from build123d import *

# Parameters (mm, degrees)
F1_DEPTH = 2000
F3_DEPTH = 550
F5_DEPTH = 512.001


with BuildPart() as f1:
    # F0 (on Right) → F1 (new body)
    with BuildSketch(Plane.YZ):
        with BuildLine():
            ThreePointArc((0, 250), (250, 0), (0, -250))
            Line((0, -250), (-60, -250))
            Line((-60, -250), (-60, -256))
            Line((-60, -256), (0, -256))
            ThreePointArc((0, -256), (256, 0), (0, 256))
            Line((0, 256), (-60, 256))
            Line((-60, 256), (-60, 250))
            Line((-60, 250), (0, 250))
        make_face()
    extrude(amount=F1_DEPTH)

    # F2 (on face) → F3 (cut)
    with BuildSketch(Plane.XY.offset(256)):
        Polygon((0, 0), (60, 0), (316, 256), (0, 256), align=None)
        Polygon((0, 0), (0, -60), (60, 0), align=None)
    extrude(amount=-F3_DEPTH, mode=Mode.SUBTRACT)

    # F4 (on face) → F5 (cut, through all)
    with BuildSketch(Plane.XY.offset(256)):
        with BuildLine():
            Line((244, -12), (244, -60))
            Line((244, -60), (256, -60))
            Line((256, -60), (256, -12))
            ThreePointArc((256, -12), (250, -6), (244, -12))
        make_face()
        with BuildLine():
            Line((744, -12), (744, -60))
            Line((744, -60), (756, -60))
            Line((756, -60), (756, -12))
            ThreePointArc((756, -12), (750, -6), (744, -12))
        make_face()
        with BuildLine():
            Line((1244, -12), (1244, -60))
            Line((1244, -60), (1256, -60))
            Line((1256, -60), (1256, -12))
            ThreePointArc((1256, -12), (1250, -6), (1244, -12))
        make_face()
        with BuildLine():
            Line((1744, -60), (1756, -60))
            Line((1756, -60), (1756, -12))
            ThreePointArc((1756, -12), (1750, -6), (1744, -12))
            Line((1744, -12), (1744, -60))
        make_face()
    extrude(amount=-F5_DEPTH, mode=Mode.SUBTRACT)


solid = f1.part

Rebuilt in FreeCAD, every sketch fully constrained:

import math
import FreeCAD as App
import Part
import Sketcher
Q = App.Units.Quantity


def add_polygon(sketch, points):
    """Adds a closed chain of lines whose ends are joined by coincident constraints."""
    first, n = sketch.GeometryCount, len(points)
    for a, b in zip(points, points[1:] + points[:1]):
        sketch.addGeometry(Part.LineSegment(App.Vector(*a, 0), App.Vector(*b, 0)), False)
    for i in range(n):
        sketch.addConstraint(Sketcher.Constraint("Coincident", first + i, 2, first + (i + 1) % n, 1))

doc = App.newDocument("Part")
body = doc.addObject("PartDesign::Body", "Body")

# Sketch on YZ plane
sketch1 = doc.addObject("Sketcher::SketchObject", "Sketch")
body.addObject(sketch1)
sketch1.AttachmentSupport = (doc.YZ_Plane, [""])
sketch1.MapMode = "FlatFace"
sketch1.addGeometry(Part.ArcOfCircle(Part.Circle(App.Vector(0, 0, 0), App.Vector(0, 0, 1), 250), math.radians(-90), math.radians(90)), False)
sketch1.addGeometry(Part.LineSegment(App.Vector(0, -250, 0), App.Vector(-60, -250, 0)), False)
sketch1.addGeometry(Part.LineSegment(App.Vector(-60, -250, 0), App.Vector(-60, -256, 0)), False)
sketch1.addGeometry(Part.LineSegment(App.Vector(-60, -256, 0), App.Vector(0, -256, 0)), False)
sketch1.addGeometry(Part.ArcOfCircle(Part.Circle(App.Vector(0, 0, 0), App.Vector(0, 0, 1), 256), math.radians(-90), math.radians(90)), False)
sketch1.addGeometry(Part.LineSegment(App.Vector(0, 256, 0), App.Vector(-60, 256, 0)), False)
sketch1.addGeometry(Part.LineSegment(App.Vector(-60, 256, 0), App.Vector(-60, 250, 0)), False)
sketch1.addGeometry(Part.LineSegment(App.Vector(-60, 250, 0), App.Vector(0, 250, 0)), False)
sketch1.addConstraint(Sketcher.Constraint("Tangent", 0, 1, 1, 1))
sketch1.addConstraint(Sketcher.Constraint("Coincident", 1, 2, 2, 1))
sketch1.addConstraint(Sketcher.Constraint("Coincident", 2, 2, 3, 1))
sketch1.addConstraint(Sketcher.Constraint("Tangent", 3, 2, 4, 1))
sketch1.addConstraint(Sketcher.Constraint("Tangent", 4, 2, 5, 1))
sketch1.addConstraint(Sketcher.Constraint("Coincident", 5, 2, 6, 1))
sketch1.addConstraint(Sketcher.Constraint("Coincident", 6, 2, 7, 1))
sketch1.addConstraint(Sketcher.Constraint("Tangent", 7, 2, 0, 2))
sketch1.addConstraint(Sketcher.Constraint("Horizontal", 1))
sketch1.addConstraint(Sketcher.Constraint("Vertical", 2))
sketch1.addConstraint(Sketcher.Constraint("Horizontal", 3))
sketch1.addConstraint(Sketcher.Constraint("Horizontal", 5))
sketch1.addConstraint(Sketcher.Constraint("Vertical", 6))
sketch1.addConstraint(Sketcher.Constraint("Horizontal", 7))
sketch1.addConstraint(Sketcher.Constraint("Coincident", 0, 3, -1, 1))
sketch1.addConstraint(Sketcher.Constraint("Coincident", 4, 3, -1, 1))
sketch1.addConstraint(Sketcher.Constraint("Vertical", 2, 2, 5, 2))
sketch1.addConstraint(Sketcher.Constraint("Radius", 0, Q("250 mm")))
sketch1.addConstraint(Sketcher.Constraint("Radius", 4, Q("256 mm")))
sketch1.addConstraint(Sketcher.Constraint("DistanceX", 1, 2, 1, 1, Q("60 mm")))
pad1 = doc.addObject("PartDesign::Pad", "Pad")
body.addObject(pad1)
pad1.Profile = sketch1
pad1.Length = 2000

# Sketch on XY plane
sketch2 = doc.addObject("Sketcher::SketchObject", "Sketch001")
body.addObject(sketch2)
sketch2.AttachmentSupport = (doc.XY_Plane, [""])
sketch2.MapMode = "FlatFace"
sketch2.AttachmentOffset = App.Placement(App.Vector(0, 0, 256), App.Rotation())
add_polygon(sketch2, [(316, 256), (0, 256), (0, -60)])  # lines 0-2
sketch2.addConstraint(Sketcher.Constraint("Horizontal", 0))
sketch2.addConstraint(Sketcher.Constraint("Vertical", 1))
sketch2.addConstraint(Sketcher.Constraint("PointOnObject", 0, 2, -2))
sketch2.addConstraint(Sketcher.Constraint("Equal", 0, 1))
sketch2.addConstraint(Sketcher.Constraint("DistanceX", 0, 2, 0, 1, Q("316 mm")))
sketch2.addConstraint(Sketcher.Constraint("DistanceY", -1, 1, 0, 2, Q("256 mm")))
pocket1 = doc.addObject("PartDesign::Pocket", "Pocket")
body.addObject(pocket1)
pocket1.Profile = sketch2
pocket1.Length = 550

# Sketch on XY plane
sketch3 = doc.addObject("Sketcher::SketchObject", "Sketch002")
body.addObject(sketch3)
sketch3.AttachmentSupport = (doc.XY_Plane, [""])
sketch3.MapMode = "FlatFace"
sketch3.AttachmentOffset = App.Placement(App.Vector(0, 0, 256), App.Rotation())
sketch3.addGeometry(Part.LineSegment(App.Vector(244, -12, 0), App.Vector(244, -60, 0)), False)
sketch3.addGeometry(Part.LineSegment(App.Vector(244, -60, 0), App.Vector(256, -60, 0)), False)
sketch3.addGeometry(Part.LineSegment(App.Vector(256, -60, 0), App.Vector(256, -12, 0)), False)
sketch3.addGeometry(Part.ArcOfCircle(Part.Circle(App.Vector(250, -12, 0), App.Vector(0, 0, 1), 6), math.radians(0), math.radians(180)), False)
sketch3.addGeometry(Part.LineSegment(App.Vector(744, -12, 0), App.Vector(744, -60, 0)), False)
sketch3.addGeometry(Part.LineSegment(App.Vector(744, -60, 0), App.Vector(756, -60, 0)), False)
sketch3.addGeometry(Part.LineSegment(App.Vector(756, -60, 0), App.Vector(756, -12, 0)), False)
sketch3.addGeometry(Part.ArcOfCircle(Part.Circle(App.Vector(750, -12, 0), App.Vector(0, 0, 1), 6), math.radians(0), math.radians(180)), False)
sketch3.addGeometry(Part.LineSegment(App.Vector(1244, -12, 0), App.Vector(1244, -60, 0)), False)
sketch3.addGeometry(Part.LineSegment(App.Vector(1244, -60, 0), App.Vector(1256, -60, 0)), False)
sketch3.addGeometry(Part.LineSegment(App.Vector(1256, -60, 0), App.Vector(1256, -12, 0)), False)
sketch3.addGeometry(Part.ArcOfCircle(Part.Circle(App.Vector(1250, -12, 0), App.Vector(0, 0, 1), 6), math.radians(0), math.radians(180)), False)
sketch3.addGeometry(Part.LineSegment(App.Vector(1744, -60, 0), App.Vector(1756, -60, 0)), False)
sketch3.addGeometry(Part.LineSegment(App.Vector(1756, -60, 0), App.Vector(1756, -12, 0)), False)
sketch3.addGeometry(Part.ArcOfCircle(Part.Circle(App.Vector(1750, -12, 0), App.Vector(0, 0, 1), 6), math.radians(0), math.radians(180)), False)
sketch3.addGeometry(Part.LineSegment(App.Vector(1744, -12, 0), App.Vector(1744, -60, 0)), False)
sketch3.addConstraint(Sketcher.Constraint("Coincident", 0, 2, 1, 1))
sketch3.addConstraint(Sketcher.Constraint("Coincident", 1, 2, 2, 1))
sketch3.addConstraint(Sketcher.Constraint("Tangent", 2, 2, 3, 1))
sketch3.addConstraint(Sketcher.Constraint("Tangent", 3, 2, 0, 1))
sketch3.addConstraint(Sketcher.Constraint("Coincident", 4, 2, 5, 1))
sketch3.addConstraint(Sketcher.Constraint("Coincident", 5, 2, 6, 1))
sketch3.addConstraint(Sketcher.Constraint("Tangent", 6, 2, 7, 1))
sketch3.addConstraint(Sketcher.Constraint("Tangent", 7, 2, 4, 1))
sketch3.addConstraint(Sketcher.Constraint("Coincident", 8, 2, 9, 1))
sketch3.addConstraint(Sketcher.Constraint("Coincident", 9, 2, 10, 1))
sketch3.addConstraint(Sketcher.Constraint("Tangent", 10, 2, 11, 1))
sketch3.addConstraint(Sketcher.Constraint("Tangent", 11, 2, 8, 1))
sketch3.addConstraint(Sketcher.Constraint("Coincident", 12, 2, 13, 1))
sketch3.addConstraint(Sketcher.Constraint("Tangent", 13, 2, 14, 1))
sketch3.addConstraint(Sketcher.Constraint("Tangent", 14, 2, 15, 1))
sketch3.addConstraint(Sketcher.Constraint("Coincident", 15, 2, 12, 1))
sketch3.addConstraint(Sketcher.Constraint("Vertical", 0))
sketch3.addConstraint(Sketcher.Constraint("Horizontal", 1))
sketch3.addConstraint(Sketcher.Constraint("Vertical", 2))
sketch3.addConstraint(Sketcher.Constraint("Vertical", 4))
sketch3.addConstraint(Sketcher.Constraint("Horizontal", 5))
sketch3.addConstraint(Sketcher.Constraint("Vertical", 6))
sketch3.addConstraint(Sketcher.Constraint("Vertical", 8))
sketch3.addConstraint(Sketcher.Constraint("Horizontal", 9))
sketch3.addConstraint(Sketcher.Constraint("Vertical", 10))
sketch3.addConstraint(Sketcher.Constraint("Horizontal", 12))
sketch3.addConstraint(Sketcher.Constraint("Vertical", 13))
sketch3.addConstraint(Sketcher.Constraint("Vertical", 15))
sketch3.addConstraint(Sketcher.Constraint("Equal", 3, 7))
sketch3.addConstraint(Sketcher.Constraint("Equal", 7, 11))
sketch3.addConstraint(Sketcher.Constraint("Equal", 11, 14))
sketch3.addConstraint(Sketcher.Constraint("Horizontal", 3, 3, 7, 3))
sketch3.addConstraint(Sketcher.Constraint("Horizontal", 7, 3, 11, 3))
sketch3.addConstraint(Sketcher.Constraint("Horizontal", 11, 3, 14, 3))
sketch3.addConstraint(Sketcher.Constraint("Horizontal", 1, 2, 4, 2))
sketch3.addConstraint(Sketcher.Constraint("Horizontal", 5, 2, 8, 2))
sketch3.addConstraint(Sketcher.Constraint("Horizontal", 9, 2, 12, 2))
sketch3.addConstraint(Sketcher.Constraint("Radius", 3, Q("6 mm")))
sketch3.addConstraint(Sketcher.Constraint("DistanceY", 0, 2, 0, 1, Q("48 mm")))
sketch3.addConstraint(Sketcher.Constraint("DistanceX", -1, 1, 3, 3, Q("250 mm")))
sketch3.addConstraint(Sketcher.Constraint("DistanceY", 3, 3, -1, 1, Q("12 mm")))
sketch3.addConstraint(Sketcher.Constraint("DistanceX", -1, 1, 7, 3, Q("750 mm")))
sketch3.addConstraint(Sketcher.Constraint("DistanceX", -1, 1, 11, 3, Q("1250 mm")))
sketch3.addConstraint(Sketcher.Constraint("DistanceX", -1, 1, 14, 3, Q("1750 mm")))
pocket2 = doc.addObject("PartDesign::Pocket", "Pocket001")
body.addObject(pocket2)
pocket2.Profile = sketch3
pocket2.Type = "ThroughAll"

doc.recompute()
